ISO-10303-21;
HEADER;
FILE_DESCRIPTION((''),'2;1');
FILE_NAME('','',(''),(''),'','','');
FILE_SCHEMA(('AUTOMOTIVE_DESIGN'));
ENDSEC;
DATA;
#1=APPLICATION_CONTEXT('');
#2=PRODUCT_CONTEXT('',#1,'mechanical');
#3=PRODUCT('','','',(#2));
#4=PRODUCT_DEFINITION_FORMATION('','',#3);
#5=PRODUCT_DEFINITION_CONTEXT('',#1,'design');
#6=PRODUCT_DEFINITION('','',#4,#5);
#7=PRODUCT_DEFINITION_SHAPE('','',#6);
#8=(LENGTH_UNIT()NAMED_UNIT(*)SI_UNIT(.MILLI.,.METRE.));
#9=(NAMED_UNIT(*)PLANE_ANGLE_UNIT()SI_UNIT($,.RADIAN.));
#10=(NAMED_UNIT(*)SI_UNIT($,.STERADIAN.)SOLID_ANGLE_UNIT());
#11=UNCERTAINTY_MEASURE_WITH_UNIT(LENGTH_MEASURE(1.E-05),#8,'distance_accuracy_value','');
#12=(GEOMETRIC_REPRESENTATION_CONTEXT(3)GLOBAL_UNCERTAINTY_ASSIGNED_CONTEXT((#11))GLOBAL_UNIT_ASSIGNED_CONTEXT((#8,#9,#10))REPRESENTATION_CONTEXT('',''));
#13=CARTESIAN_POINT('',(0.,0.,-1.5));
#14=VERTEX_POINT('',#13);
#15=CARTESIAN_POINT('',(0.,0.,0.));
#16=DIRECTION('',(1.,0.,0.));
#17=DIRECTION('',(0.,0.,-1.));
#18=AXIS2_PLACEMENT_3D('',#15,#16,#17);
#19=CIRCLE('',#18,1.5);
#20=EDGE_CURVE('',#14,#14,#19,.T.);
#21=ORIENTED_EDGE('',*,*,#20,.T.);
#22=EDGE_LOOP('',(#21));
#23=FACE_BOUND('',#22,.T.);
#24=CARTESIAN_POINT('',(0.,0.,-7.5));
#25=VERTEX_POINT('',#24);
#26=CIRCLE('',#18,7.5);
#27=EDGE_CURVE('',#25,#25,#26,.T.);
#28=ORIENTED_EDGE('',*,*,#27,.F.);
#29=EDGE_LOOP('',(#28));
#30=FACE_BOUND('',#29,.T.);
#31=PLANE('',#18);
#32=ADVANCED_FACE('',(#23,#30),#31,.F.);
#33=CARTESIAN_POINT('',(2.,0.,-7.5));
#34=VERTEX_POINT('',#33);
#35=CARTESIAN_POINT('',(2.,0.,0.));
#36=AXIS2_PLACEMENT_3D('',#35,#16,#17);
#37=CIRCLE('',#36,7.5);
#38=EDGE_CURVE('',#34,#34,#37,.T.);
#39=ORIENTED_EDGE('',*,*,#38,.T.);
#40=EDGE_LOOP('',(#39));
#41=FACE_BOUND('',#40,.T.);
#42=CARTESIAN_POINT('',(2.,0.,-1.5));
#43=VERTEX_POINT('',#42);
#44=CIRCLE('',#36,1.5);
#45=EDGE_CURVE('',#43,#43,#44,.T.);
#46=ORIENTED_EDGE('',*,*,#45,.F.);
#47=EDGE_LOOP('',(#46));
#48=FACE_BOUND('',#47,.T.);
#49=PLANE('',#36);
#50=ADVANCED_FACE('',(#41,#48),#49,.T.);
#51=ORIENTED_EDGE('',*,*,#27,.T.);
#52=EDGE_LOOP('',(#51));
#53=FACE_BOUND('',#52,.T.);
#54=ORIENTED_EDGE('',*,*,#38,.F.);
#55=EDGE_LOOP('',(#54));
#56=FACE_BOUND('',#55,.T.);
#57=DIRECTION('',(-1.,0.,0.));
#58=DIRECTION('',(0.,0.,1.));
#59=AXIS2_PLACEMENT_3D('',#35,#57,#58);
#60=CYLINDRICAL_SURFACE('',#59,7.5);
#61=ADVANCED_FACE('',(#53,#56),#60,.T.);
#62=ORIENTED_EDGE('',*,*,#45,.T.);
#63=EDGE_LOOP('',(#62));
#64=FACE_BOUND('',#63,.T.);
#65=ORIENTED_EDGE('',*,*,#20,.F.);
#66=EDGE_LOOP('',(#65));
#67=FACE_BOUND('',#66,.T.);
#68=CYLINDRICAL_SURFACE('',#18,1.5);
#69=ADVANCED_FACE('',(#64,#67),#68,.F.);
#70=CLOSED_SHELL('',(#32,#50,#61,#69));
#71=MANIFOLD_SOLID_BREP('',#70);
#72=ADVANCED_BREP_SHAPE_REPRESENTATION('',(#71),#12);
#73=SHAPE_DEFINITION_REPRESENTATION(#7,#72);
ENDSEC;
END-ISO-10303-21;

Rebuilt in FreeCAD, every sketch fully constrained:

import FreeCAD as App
import Part
import Sketcher
Q = App.Units.Quantity

doc = App.newDocument("Part")
body = doc.addObject("PartDesign::Body", "Body")

# Sketch on YZ plane
sketch1 = body.newObject("Sketcher::SketchObject", "Sketch")
sketch1.AttachmentSupport = (doc.getObject("YZ_Plane"), [""])
sketch1.MapMode = "FlatFace"
sketch1.addGeometry(Part.Circle(App.Vector(0, 0, 0), App.Vector(0, 0, 1), 8), False)
sketch1.addConstraint(Sketcher.Constraint("Coincident", 0, 3, -1, 1))
sketch1.addConstraint(Sketcher.Constraint("Diameter", 0, Q("15 mm")))
pad1 = body.newObject("PartDesign::Pad", "Pad")
pad1.Profile = sketch1
pad1.Length = 2

# Sketch on YZ plane
sketch2 = body.newObject("Sketcher::SketchObject", "Sketch001")
sketch2.AttachmentSupport = (doc.getObject("YZ_Plane"), [""])
sketch2.MapMode = "FlatFace"
sketch2.AttachmentOffset = App.Placement(App.Vector(0, 0, 2), App.Rotation())
sketch2.addGeometry(Part.Circle(App.Vector(0, 0, 0), App.Vector(0, 0, 1), 1.5), False)
sketch2.addConstraint(Sketcher.Constraint("Coincident", 0, 3, -1, 1))
sketch2.addConstraint(Sketcher.Constraint("Diameter", 0, Q("3 mm")))
pocket1 = body.newObject("PartDesign::Pocket", "Pocket")
pocket1.Profile = sketch2
pocket1.Type = "ThroughAll"

doc.recompute()
